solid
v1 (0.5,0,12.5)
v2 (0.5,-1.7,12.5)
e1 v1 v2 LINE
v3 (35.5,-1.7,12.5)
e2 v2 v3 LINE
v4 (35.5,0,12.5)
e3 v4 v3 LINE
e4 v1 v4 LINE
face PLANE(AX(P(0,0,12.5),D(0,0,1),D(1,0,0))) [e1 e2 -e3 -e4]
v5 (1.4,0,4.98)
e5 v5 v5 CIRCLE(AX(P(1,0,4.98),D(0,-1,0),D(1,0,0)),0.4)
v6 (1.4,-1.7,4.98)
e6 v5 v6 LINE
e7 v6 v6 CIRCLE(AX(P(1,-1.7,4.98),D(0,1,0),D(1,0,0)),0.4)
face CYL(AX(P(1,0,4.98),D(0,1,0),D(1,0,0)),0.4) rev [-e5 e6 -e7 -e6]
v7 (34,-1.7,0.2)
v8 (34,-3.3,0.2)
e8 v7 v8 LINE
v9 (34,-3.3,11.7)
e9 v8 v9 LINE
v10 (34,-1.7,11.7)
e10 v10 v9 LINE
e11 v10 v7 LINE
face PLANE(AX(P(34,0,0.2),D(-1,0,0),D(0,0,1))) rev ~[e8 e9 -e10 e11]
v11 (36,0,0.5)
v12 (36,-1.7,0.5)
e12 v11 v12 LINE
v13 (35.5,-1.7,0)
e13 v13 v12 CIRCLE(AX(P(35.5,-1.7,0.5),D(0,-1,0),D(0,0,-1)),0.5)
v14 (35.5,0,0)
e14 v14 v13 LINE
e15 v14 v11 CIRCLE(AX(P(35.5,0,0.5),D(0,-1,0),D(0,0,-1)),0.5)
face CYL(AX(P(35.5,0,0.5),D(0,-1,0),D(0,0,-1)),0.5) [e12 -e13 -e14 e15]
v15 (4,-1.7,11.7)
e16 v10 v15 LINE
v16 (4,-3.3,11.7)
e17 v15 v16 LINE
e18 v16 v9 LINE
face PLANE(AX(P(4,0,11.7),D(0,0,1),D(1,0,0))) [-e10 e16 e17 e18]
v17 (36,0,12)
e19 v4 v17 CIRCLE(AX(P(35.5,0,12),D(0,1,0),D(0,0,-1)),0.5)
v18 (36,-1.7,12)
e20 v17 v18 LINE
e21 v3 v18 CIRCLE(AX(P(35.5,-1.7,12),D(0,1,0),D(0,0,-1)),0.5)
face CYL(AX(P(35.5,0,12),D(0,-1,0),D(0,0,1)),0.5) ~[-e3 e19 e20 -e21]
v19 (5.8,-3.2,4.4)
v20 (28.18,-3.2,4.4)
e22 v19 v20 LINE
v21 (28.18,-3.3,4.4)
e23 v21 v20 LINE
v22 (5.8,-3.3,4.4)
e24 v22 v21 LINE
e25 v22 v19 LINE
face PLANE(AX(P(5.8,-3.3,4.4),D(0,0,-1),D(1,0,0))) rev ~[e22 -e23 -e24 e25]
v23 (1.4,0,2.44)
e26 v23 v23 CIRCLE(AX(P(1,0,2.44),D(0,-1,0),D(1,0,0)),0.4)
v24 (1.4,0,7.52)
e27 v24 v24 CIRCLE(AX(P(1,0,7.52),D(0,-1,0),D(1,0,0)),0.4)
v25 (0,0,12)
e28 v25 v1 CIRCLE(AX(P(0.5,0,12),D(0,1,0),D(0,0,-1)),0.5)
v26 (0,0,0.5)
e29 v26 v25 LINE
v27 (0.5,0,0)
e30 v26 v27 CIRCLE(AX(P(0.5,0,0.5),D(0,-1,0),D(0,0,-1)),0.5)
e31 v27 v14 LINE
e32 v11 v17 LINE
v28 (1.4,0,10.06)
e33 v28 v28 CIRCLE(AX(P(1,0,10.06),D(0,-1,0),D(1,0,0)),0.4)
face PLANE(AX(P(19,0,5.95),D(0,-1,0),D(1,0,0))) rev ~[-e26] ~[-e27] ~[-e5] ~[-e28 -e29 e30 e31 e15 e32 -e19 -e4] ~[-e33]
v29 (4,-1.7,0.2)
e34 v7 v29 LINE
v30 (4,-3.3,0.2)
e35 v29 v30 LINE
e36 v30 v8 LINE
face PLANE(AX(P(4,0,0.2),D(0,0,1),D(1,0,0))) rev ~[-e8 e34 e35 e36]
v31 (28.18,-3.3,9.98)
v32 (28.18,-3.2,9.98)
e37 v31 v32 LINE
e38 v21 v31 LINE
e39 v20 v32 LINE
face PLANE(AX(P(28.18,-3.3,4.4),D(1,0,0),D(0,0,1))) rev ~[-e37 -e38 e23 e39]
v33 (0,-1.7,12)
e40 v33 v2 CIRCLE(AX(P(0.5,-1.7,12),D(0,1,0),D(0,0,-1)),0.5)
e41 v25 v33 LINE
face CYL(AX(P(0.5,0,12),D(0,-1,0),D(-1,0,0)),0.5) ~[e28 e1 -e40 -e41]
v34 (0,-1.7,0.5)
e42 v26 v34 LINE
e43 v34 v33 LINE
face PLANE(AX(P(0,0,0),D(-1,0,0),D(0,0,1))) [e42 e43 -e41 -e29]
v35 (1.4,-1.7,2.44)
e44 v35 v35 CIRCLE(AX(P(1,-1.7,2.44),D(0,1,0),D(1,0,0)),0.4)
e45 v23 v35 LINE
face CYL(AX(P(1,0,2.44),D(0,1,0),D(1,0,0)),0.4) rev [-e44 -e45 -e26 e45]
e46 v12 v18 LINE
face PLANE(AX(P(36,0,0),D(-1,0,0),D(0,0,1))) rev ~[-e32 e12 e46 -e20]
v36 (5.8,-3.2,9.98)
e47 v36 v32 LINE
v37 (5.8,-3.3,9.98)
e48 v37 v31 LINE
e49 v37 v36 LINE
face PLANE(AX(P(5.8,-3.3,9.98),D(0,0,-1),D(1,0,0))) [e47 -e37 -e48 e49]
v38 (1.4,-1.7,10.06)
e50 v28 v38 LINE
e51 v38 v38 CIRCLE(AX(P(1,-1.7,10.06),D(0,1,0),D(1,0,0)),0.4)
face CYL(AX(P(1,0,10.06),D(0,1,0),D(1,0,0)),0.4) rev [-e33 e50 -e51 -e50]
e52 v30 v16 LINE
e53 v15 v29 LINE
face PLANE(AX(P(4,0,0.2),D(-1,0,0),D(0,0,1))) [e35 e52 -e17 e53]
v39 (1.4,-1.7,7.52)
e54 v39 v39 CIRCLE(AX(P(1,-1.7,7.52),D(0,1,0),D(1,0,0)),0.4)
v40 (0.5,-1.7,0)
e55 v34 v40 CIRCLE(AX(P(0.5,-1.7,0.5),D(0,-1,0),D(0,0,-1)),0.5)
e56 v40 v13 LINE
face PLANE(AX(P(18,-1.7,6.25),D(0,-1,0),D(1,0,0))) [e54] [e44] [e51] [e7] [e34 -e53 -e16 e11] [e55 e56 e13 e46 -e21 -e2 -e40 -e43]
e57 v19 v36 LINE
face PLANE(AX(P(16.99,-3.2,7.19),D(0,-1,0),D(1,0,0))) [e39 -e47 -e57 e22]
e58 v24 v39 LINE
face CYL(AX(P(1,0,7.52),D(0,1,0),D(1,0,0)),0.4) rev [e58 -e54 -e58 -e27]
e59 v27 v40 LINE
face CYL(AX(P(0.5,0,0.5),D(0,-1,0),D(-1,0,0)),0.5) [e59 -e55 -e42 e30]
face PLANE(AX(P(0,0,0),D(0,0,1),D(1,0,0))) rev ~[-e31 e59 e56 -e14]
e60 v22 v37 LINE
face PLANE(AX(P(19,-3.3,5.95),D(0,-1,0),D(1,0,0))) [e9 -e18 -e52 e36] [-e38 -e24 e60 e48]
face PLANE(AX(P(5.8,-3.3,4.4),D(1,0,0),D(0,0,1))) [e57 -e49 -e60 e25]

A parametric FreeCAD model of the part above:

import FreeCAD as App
import Part
import Sketcher
Q = App.Units.Quantity


def edges_at(feature, points):
    """Names of the edges that pass closest to the given points."""
    edges = feature.Shape.Edges
    near = lambda p: min(range(len(edges)), key=lambda i: edges[i].distToShape(Part.Vertex(*p))[0])
    return sorted({f"Edge{near(p) + 1}" for p in points})

doc = App.newDocument("Part")
body = doc.addObject("PartDesign::Body", "Body")

sketch1 = body.newObject("Sketcher::SketchObject", "Sketch")
sketch1.AttachmentSupport = (doc.getObject("XZ_Plane"), [""])
sketch1.MapMode = "FlatFace"
sketch1.addGeometry(Part.LineSegment(App.Vector(0, 12, 0), App.Vector(0, 0, 0)), False)
sketch1.addGeometry(Part.LineSegment(App.Vector(0, 0, 0), App.Vector(36, 0, 0)), False)
sketch1.addGeometry(Part.LineSegment(App.Vector(36, 0, 0), App.Vector(36, 12, 0)), False)
sketch1.addGeometry(Part.LineSegment(App.Vector(36, 12, 0), App.Vector(0, 12, 0)), False)
sketch1.addConstraint(Sketcher.Constraint("Coincident", 0, 2, 1, 1))
sketch1.addConstraint(Sketcher.Constraint("Coincident", 1, 2, 2, 1))
sketch1.addConstraint(Sketcher.Constraint("Coincident", 2, 2, 3, 1))
sketch1.addConstraint(Sketcher.Constraint("Coincident", 3, 2, 0, 1))
sketch1.addConstraint(Sketcher.Constraint("Vertical", 0))
sketch1.addConstraint(Sketcher.Constraint("Horizontal", 1))
sketch1.addConstraint(Sketcher.Constraint("Vertical", 2))
sketch1.addConstraint(Sketcher.Constraint("Horizontal", 3))
sketch1.addConstraint(Sketcher.Constraint("Coincident", 0, 2, -1, 1))
sketch1.addConstraint(Sketcher.Constraint("DistanceX", 1, 1, 1, 2, Q("36 mm")))
sketch1.addConstraint(Sketcher.Constraint("DistanceY", 0, 2, 0, 1, Q("12.5 mm")))
pad1 = body.newObject("PartDesign::Pad", "Pad")
pad1.Profile = sketch1
pad1.Length = 1.7

sketch2 = body.newObject("Sketcher::SketchObject", "Sketch001")
sketch2.AttachmentSupport = (doc.getObject("XZ_Plane"), [""])
sketch2.MapMode = "FlatFace"
sketch2.addGeometry(Part.LineSegment(App.Vector(4, 12, 0), App.Vector(4, 0, 0)), False)
sketch2.addGeometry(Part.LineSegment(App.Vector(4, 0, 0), App.Vector(34, 0, 0)), False)
sketch2.addGeometry(Part.LineSegment(App.Vector(34, 0, 0), App.Vector(34, 12, 0)), False)
sketch2.addGeometry(Part.LineSegment(App.Vector(34, 12, 0), App.Vector(4, 12, 0)), False)
sketch2.addConstraint(Sketcher.Constraint("Coincident", 0, 2, 1, 1))
sketch2.addConstraint(Sketcher.Constraint("Coincident", 1, 2, 2, 1))
sketch2.addConstraint(Sketcher.Constraint("Coincident", 2, 2, 3, 1))
sketch2.addConstraint(Sketcher.Constraint("Coincident", 3, 2, 0, 1))
sketch2.addConstraint(Sketcher.Constraint("Vertical", 0))
sketch2.addConstraint(Sketcher.Constraint("Horizontal", 1))
sketch2.addConstraint(Sketcher.Constraint("Vertical", 2))
sketch2.addConstraint(Sketcher.Constraint("Horizontal", 3))
sketch2.addConstraint(Sketcher.Constraint("DistanceX", 1, 1, 1, 2, Q("30 mm")))
sketch2.addConstraint(Sketcher.Constraint("DistanceY", 0, 2, 0, 1, Q("11.5 mm")))
sketch2.addConstraint(Sketcher.Constraint("DistanceX", -1, 1, 0, 2, Q("4 mm")))
sketch2.addConstraint(Sketcher.Constraint("DistanceY", -1, 1, 0, 2, Q("0.2 mm")))
pad2 = body.newObject("PartDesign::Pad", "Pad001")
pad2.Profile = sketch2
pad2.Length = 3.3

sketch3 = body.newObject("Sketcher::SketchObject", "Sketch002")
sketch3.AttachmentSupport = (doc.getObject("XZ_Plane"), [""])
sketch3.MapMode = "FlatFace"
sketch3.AttachmentOffset = App.Placement(App.Vector(0, 0, 3.3), App.Rotation())
sketch3.addGeometry(Part.LineSegment(App.Vector(6, 10, 0), App.Vector(6, 4, 0)), False)
sketch3.addGeometry(Part.LineSegment(App.Vector(6, 4, 0), App.Vector(28, 4, 0)), False)
sketch3.addGeometry(Part.LineSegment(App.Vector(28, 4, 0), App.Vector(28, 10, 0)), False)
sketch3.addGeometry(Part.LineSegment(App.Vector(28, 10, 0), App.Vector(6, 10, 0)), False)
sketch3.addConstraint(Sketcher.Constraint("Coincident", 0, 2, 1, 1))
sketch3.addConstraint(Sketcher.Constraint("Coincident", 1, 2, 2, 1))
sketch3.addConstraint(Sketcher.Constraint("Coincident", 2, 2, 3, 1))
sketch3.addConstraint(Sketcher.Constraint("Coincident", 3, 2, 0, 1))
sketch3.addConstraint(Sketcher.Constraint("Vertical", 0))
sketch3.addConstraint(Sketcher.Constraint("Horizontal", 1))
sketch3.addConstraint(Sketcher.Constraint("Vertical", 2))
sketch3.addConstraint(Sketcher.Constraint("Horizontal", 3))
sketch3.addConstraint(Sketcher.Constraint("DistanceX", 1, 1, 1, 2, Q("22.38 mm")))
sketch3.addConstraint(Sketcher.Constraint("DistanceY", 0, 2, 0, 1, Q("5.58 mm")))
sketch3.addConstraint(Sketcher.Constraint("DistanceX", -1, 1, 0, 2, Q("5.8 mm")))
sketch3.addConstraint(Sketcher.Constraint("DistanceY", -1, 1, 0, 2, Q("4.4 mm")))
pocket1 = body.newObject("PartDesign::Pocket", "Pocket")
pocket1.Profile = sketch3
pocket1.Length = 0.1

sketch4 = body.newObject("Sketcher::SketchObject", "Sketch003")
sketch4.AttachmentSupport = (doc.getObject("XZ_Plane"), [""])
sketch4.MapMode = "FlatFace"
sketch4.addGeometry(Part.Circle(App.Vector(1, 2.44, 0), App.Vector(0, 0, 1), 0.4), False)
sketch4.addConstraint(Sketcher.Constraint("Diameter", 0, Q("0.8 mm")))
sketch4.addConstraint(Sketcher.Constraint("DistanceX", -1, 1, 0, 3, Q("1 mm")))
sketch4.addConstraint(Sketcher.Constraint("DistanceY", -1, 1, 0, 3, Q("2.44 mm")))
pocket2 = body.newObject("PartDesign::Pocket", "Pocket001")
pocket2.Profile = sketch4
pocket2.Length = 25
pocket2.Reversed = True
doc.recompute()

linearpattern = body.newObject("PartDesign::LinearPattern", "LinearPattern")
linearpattern.Originals = [pocket2]
linearpattern.Direction = (doc.getObject("Z_Axis"), [""])
linearpattern.Mode = "offset"
linearpattern.Offset = 2.54
linearpattern.Occurrences = 4
body.Tip = linearpattern
doc.recompute()

fillet = body.newObject("PartDesign::Fillet", "Fillet")
fillet.Base = (linearpattern, edges_at(linearpattern, [
    (36, -0.85, 12.5),
    (36, -0.85, 0),
    (0, -0.85, 12.5),
    (0, -0.85, 0),
]))
fillet.Radius = 0.5

doc.recompute()
